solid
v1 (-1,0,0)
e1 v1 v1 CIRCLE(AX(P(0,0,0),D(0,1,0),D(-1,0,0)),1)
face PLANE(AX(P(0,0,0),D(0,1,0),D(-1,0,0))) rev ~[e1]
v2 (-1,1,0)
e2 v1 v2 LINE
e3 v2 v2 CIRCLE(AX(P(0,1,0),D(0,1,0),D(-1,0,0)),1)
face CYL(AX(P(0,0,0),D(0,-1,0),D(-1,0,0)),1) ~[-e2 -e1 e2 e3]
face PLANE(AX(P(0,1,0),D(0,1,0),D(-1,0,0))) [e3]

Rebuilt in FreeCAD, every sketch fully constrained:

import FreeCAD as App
import Part
import Sketcher
from FreeCAD import Vector

doc = App.newDocument("Part")
body = doc.addObject("PartDesign::Body", "Body")

# Sketch on XZ plane
sketch1 = body.newObject("Sketcher::SketchObject", "Sketch")
sketch1.AttachmentSupport = (doc.getObject("XZ_Plane"), [""])
sketch1.MapMode = "FlatFace"
sketch1.addGeometry(Part.Circle(Vector(0, 0, 0), Vector(0, 0, 1), 1), False)
sketch1.addConstraint([
    Sketcher.Constraint("Coincident", 0, 3, -1, 1),
    Sketcher.Constraint("Diameter", 0, 2.0),
])
pad1 = body.newObject("PartDesign::Pad", "Pad")
pad1.Profile = sketch1
pad1.Length = 1
pad1.Reversed = True

doc.recompute()
